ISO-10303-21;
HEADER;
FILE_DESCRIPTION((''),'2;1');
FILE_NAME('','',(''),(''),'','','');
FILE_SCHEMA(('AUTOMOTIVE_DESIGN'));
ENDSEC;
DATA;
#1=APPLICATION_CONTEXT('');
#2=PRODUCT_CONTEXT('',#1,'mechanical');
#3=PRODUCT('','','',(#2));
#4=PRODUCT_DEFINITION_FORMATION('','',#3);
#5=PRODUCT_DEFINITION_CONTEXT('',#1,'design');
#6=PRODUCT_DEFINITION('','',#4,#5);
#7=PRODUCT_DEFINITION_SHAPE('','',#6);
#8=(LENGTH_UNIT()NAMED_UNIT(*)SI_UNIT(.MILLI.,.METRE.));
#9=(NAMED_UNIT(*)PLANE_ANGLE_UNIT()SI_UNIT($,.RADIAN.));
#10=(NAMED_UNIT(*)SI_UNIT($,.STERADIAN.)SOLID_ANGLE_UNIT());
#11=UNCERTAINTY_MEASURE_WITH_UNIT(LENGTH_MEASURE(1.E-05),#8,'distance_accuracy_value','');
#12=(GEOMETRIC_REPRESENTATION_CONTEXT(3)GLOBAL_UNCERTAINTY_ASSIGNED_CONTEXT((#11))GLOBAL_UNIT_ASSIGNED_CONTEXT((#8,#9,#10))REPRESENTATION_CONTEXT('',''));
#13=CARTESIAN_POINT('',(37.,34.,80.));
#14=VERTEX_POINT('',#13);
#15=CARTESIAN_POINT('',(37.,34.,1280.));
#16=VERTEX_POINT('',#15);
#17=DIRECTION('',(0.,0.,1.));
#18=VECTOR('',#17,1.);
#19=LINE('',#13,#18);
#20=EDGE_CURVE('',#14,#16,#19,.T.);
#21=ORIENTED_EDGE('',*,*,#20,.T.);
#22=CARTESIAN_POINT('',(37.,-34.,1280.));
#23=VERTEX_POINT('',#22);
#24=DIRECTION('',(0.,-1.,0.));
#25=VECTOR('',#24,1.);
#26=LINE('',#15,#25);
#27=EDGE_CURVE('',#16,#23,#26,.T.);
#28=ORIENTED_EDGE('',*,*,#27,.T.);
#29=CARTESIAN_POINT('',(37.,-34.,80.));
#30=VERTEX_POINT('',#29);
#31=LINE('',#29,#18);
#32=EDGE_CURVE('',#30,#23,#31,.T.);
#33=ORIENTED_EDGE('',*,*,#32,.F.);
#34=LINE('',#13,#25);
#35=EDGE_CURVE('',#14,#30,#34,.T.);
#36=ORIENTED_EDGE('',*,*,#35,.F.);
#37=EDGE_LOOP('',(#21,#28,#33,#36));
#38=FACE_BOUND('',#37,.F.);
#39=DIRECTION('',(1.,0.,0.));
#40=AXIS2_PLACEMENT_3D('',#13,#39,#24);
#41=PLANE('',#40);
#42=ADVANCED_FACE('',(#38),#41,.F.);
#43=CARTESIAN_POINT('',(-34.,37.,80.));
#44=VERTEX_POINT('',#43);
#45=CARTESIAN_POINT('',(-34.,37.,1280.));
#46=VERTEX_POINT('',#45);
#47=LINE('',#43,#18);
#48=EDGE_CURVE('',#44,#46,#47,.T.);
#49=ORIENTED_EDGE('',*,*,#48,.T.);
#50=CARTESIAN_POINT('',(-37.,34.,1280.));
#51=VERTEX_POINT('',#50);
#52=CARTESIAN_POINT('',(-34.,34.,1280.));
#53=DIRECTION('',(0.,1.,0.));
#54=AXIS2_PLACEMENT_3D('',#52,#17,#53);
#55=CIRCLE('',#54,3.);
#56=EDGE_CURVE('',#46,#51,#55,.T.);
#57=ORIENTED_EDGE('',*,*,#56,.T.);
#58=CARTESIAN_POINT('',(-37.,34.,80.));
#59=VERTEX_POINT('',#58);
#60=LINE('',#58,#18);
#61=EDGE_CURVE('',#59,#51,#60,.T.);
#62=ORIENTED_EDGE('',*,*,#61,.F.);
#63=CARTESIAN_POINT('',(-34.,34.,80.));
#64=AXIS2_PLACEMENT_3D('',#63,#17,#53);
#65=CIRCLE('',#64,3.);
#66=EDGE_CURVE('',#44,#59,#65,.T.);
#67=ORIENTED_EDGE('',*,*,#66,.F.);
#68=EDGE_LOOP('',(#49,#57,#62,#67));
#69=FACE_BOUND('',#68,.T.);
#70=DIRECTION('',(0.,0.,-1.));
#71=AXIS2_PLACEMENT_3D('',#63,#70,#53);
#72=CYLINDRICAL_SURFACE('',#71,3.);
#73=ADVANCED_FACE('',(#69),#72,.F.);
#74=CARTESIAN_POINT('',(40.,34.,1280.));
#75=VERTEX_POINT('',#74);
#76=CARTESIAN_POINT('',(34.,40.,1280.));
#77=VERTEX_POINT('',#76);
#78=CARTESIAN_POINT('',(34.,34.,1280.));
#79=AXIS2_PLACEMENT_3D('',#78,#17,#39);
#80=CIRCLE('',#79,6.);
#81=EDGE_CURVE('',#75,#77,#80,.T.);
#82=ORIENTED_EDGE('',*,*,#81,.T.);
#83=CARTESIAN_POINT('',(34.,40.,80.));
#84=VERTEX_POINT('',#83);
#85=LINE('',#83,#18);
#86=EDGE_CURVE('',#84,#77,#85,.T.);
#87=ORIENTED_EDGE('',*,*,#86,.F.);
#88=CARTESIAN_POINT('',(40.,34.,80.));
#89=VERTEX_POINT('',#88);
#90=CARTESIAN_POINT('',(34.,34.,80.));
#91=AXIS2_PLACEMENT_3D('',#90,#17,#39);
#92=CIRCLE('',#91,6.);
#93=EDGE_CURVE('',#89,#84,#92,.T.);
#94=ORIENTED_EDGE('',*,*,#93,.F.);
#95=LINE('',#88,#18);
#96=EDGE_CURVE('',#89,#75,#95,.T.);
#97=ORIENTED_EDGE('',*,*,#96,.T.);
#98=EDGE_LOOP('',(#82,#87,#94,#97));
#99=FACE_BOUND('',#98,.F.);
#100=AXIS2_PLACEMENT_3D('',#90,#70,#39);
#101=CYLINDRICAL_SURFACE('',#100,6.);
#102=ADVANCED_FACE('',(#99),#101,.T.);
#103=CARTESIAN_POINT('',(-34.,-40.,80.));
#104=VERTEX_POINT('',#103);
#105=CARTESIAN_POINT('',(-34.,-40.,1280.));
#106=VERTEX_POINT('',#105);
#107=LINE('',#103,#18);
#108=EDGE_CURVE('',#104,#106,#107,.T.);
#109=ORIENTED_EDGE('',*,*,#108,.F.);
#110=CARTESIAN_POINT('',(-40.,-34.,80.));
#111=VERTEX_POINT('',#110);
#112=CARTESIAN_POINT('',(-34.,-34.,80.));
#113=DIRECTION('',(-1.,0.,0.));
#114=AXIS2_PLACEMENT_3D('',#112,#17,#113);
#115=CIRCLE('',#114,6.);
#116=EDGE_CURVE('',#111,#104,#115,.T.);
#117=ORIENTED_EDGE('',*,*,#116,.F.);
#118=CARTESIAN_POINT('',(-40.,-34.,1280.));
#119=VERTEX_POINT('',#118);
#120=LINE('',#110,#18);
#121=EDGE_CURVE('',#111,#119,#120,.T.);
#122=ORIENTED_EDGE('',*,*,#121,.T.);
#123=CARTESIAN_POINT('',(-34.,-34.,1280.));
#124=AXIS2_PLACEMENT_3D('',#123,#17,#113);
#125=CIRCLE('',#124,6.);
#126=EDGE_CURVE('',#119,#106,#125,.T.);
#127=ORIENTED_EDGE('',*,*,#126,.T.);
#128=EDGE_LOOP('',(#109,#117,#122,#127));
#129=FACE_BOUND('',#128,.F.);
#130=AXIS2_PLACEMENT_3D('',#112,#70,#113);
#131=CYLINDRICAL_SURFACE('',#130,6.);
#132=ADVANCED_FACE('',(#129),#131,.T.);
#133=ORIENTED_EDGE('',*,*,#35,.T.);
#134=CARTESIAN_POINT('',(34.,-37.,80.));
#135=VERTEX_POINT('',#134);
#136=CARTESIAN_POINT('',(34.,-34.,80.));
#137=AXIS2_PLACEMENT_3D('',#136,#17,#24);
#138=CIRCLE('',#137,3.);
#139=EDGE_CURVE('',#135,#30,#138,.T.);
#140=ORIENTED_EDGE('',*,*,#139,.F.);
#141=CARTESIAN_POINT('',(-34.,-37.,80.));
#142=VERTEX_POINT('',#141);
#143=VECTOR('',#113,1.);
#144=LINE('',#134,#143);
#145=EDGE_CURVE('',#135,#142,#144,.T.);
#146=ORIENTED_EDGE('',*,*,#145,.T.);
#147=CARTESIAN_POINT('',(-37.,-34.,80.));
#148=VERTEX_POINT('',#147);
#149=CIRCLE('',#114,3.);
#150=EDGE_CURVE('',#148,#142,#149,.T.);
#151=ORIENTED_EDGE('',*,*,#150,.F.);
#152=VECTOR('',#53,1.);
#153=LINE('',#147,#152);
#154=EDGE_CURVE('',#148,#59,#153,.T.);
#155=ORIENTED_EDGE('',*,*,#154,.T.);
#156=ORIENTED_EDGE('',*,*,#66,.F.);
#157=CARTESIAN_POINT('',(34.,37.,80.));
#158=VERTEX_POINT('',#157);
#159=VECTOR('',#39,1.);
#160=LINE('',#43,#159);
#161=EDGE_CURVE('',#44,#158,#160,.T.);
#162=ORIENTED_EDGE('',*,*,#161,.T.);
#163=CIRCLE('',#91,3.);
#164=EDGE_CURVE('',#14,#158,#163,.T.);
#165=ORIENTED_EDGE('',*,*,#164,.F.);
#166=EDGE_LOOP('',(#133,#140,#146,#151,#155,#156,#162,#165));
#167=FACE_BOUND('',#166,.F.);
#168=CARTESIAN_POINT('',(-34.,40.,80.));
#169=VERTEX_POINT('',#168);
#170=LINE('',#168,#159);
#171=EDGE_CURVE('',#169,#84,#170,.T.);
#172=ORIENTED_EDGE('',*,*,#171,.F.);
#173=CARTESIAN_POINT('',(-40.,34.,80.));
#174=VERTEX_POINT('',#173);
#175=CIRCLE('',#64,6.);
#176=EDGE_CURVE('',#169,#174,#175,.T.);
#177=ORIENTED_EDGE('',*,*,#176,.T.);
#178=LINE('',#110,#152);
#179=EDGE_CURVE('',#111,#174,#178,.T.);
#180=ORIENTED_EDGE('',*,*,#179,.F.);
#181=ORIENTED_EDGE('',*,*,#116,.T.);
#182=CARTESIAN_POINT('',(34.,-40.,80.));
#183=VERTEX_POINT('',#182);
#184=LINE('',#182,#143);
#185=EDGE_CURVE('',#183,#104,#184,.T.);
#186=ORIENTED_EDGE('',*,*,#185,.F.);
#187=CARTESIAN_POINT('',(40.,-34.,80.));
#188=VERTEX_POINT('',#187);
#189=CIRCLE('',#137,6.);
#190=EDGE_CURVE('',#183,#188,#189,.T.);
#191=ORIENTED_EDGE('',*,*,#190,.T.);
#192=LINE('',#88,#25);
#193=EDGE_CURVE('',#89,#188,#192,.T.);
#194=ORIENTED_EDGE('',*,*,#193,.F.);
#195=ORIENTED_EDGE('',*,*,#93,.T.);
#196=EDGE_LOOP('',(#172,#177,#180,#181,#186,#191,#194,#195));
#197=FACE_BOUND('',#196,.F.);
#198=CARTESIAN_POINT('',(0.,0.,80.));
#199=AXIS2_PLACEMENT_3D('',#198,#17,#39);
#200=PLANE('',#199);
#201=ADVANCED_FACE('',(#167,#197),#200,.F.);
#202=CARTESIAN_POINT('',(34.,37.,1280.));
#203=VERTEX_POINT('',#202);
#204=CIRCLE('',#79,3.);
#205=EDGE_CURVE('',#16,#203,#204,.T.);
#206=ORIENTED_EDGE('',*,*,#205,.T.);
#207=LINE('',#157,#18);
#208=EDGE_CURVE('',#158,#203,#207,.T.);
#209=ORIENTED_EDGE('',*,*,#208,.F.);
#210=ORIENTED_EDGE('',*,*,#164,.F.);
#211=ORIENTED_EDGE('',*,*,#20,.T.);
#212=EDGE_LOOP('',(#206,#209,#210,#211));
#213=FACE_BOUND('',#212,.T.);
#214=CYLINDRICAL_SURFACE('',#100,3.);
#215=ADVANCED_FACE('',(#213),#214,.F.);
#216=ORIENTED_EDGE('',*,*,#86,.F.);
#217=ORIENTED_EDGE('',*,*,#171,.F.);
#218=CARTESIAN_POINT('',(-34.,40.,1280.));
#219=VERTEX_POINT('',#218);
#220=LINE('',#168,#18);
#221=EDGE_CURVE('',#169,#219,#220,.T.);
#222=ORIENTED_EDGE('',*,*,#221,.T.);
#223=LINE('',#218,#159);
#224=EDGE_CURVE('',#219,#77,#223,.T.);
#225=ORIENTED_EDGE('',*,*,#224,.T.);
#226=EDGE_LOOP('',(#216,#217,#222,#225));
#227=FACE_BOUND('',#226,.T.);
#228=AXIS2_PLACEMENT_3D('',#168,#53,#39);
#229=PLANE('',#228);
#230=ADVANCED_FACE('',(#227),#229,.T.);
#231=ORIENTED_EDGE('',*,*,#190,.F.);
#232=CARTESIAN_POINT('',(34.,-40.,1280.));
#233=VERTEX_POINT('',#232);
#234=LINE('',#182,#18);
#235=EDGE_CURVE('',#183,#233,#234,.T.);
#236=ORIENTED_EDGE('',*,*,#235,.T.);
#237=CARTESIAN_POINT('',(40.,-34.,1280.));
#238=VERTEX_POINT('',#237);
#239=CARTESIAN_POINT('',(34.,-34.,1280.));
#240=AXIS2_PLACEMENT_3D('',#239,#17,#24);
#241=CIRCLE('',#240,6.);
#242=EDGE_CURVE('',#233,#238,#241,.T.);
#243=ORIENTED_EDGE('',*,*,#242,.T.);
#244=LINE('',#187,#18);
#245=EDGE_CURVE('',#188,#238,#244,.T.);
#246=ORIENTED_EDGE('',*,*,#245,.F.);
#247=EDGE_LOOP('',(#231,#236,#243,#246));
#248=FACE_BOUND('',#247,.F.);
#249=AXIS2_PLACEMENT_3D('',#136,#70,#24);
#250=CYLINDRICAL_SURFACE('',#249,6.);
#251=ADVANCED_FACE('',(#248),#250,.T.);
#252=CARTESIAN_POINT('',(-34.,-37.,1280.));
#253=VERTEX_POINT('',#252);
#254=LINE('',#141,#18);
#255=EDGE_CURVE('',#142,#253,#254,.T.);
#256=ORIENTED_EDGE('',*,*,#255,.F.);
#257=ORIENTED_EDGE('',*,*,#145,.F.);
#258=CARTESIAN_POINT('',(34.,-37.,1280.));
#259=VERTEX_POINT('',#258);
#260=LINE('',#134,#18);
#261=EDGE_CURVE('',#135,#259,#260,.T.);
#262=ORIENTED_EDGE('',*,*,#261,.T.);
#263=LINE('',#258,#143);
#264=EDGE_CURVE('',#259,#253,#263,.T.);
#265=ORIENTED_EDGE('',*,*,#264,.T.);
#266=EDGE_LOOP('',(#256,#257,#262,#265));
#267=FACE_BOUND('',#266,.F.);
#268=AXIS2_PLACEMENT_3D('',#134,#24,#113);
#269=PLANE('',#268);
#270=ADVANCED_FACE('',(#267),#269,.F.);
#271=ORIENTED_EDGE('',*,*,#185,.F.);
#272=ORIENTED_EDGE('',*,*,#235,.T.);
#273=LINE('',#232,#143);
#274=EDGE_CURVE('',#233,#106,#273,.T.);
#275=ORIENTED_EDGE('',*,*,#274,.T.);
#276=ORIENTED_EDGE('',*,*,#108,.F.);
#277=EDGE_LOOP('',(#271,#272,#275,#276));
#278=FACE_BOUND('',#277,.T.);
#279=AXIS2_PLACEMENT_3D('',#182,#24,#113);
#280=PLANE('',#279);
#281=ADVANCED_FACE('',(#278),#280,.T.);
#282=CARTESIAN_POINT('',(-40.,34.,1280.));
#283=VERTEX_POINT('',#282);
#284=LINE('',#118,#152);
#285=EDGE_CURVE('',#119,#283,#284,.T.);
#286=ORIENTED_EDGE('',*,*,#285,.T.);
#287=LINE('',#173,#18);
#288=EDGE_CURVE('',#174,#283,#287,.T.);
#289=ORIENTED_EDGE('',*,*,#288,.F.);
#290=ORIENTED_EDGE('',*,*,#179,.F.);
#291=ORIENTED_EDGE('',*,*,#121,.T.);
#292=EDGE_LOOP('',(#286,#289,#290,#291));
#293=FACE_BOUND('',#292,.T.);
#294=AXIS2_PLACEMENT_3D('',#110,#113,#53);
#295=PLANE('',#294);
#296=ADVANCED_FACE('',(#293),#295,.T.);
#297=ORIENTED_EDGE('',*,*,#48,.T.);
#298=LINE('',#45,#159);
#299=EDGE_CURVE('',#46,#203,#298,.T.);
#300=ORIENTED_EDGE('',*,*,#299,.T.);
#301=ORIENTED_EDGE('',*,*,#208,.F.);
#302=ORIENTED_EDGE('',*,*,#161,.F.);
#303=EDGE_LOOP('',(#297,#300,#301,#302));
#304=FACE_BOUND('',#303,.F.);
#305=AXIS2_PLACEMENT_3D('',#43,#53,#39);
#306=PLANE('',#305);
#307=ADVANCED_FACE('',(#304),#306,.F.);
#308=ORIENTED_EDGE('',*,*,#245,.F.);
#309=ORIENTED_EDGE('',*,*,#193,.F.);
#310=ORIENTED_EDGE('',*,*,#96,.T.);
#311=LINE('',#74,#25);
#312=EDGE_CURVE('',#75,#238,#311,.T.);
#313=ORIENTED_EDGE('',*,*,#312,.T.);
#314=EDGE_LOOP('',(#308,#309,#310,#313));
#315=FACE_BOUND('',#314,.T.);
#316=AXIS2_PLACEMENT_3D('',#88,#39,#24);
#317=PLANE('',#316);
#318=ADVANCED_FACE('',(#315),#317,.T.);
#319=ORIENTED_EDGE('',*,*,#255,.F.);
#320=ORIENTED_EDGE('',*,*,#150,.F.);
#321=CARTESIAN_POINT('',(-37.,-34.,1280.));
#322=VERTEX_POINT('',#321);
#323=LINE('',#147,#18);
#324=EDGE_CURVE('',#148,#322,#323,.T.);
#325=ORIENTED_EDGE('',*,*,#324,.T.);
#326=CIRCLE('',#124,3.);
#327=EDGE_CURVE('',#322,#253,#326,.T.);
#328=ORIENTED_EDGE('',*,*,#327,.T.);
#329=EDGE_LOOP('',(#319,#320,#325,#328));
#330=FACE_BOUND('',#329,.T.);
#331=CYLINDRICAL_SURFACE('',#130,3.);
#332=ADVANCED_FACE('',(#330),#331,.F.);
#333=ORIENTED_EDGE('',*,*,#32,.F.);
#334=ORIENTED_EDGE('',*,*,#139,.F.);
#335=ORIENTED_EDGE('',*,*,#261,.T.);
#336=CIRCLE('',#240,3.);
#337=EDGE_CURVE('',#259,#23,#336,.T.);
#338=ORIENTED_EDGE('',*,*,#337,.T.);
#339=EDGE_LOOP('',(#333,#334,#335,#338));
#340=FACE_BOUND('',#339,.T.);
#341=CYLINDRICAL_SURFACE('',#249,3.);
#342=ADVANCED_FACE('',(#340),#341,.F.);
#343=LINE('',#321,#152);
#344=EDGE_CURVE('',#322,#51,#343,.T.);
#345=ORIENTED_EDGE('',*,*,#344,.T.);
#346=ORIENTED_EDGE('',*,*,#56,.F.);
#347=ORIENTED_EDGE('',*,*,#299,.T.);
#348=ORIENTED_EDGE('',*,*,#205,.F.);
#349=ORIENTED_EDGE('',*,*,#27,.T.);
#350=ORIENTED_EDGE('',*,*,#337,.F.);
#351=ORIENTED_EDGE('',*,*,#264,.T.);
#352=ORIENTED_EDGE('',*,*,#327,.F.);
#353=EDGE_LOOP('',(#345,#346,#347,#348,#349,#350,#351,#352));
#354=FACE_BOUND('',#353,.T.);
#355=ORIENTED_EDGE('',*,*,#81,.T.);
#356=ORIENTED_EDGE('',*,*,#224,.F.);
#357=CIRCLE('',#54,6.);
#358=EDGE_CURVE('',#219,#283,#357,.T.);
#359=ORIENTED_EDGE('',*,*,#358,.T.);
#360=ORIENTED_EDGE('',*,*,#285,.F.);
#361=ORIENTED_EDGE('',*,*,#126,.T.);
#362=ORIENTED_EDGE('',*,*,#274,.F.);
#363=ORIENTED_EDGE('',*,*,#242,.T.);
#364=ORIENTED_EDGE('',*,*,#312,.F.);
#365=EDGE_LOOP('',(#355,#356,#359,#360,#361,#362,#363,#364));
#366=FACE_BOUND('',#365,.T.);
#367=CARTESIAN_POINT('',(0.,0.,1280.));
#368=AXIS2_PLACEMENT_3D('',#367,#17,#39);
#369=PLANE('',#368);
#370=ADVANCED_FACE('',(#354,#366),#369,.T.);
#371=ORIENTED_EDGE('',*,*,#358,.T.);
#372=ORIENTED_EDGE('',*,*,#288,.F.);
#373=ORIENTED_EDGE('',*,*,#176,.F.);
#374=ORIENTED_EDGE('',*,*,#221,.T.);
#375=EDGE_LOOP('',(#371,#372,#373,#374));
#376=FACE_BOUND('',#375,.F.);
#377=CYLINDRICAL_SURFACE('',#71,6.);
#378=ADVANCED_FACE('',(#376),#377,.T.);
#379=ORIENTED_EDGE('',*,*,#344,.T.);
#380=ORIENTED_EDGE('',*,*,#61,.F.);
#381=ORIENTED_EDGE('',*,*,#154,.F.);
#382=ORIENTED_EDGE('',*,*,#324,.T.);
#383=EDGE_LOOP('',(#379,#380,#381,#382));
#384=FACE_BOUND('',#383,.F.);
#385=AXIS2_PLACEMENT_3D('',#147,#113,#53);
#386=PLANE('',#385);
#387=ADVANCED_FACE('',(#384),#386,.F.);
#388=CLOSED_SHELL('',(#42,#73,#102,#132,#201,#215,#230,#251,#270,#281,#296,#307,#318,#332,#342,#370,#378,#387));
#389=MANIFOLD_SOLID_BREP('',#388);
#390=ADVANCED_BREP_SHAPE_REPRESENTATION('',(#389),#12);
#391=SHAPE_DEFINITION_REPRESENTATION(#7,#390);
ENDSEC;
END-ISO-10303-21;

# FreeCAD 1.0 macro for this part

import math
import FreeCAD as App
import Part
import Sketcher
Q = App.Units.Quantity

doc = App.newDocument("Part")
body = doc.addObject("PartDesign::Body", "Body")

# Sketch on XY plane
sketch1 = doc.addObject("Sketcher::SketchObject", "Sketch")
body.addObject(sketch1)
sketch1.AttachmentSupport = (doc.XY_Plane, [""])
sketch1.MapMode = "FlatFace"
sketch1.AttachmentOffset = App.Placement(App.Vector(0, 0, 80), App.Rotation())
sketch1.addGeometry([
    Part.LineSegment(App.Vector(-40, 34, 0), App.Vector(-40, -34, 0)),  # 0
    Part.ArcOfCircle(Part.Circle(App.Vector(-34, -34, 0), App.Vector(0, 0, 1), 6), math.radians(180), math.radians(270)),  # 1
    Part.LineSegment(App.Vector(-34, -40, 0), App.Vector(34, -40, 0)),  # 2
    Part.ArcOfCircle(Part.Circle(App.Vector(34, -34, 0), App.Vector(0, 0, 1), 6), math.radians(-90), math.radians(0)),  # 3
    Part.LineSegment(App.Vector(40, -34, 0), App.Vector(40, 34, 0)),  # 4
    Part.ArcOfCircle(Part.Circle(App.Vector(34, 34, 0), App.Vector(0, 0, 1), 6), math.radians(0), math.radians(90)),  # 5
    Part.LineSegment(App.Vector(34, 40, 0), App.Vector(-34, 40, 0)),  # 6
    Part.ArcOfCircle(Part.Circle(App.Vector(-34, 34, 0), App.Vector(0, 0, 1), 6), math.radians(90), math.radians(180)),  # 7
    Part.ArcOfCircle(Part.Circle(App.Vector(-34, 34, 0), App.Vector(0, 0, 1), 3), math.radians(90), math.radians(180)),  # 8
    Part.LineSegment(App.Vector(-34, 37, 0), App.Vector(34, 37, 0)),  # 9
    Part.ArcOfCircle(Part.Circle(App.Vector(34, 34, 0), App.Vector(0, 0, 1), 3), math.radians(0), math.radians(90)),  # 10
    Part.LineSegment(App.Vector(37, 34, 0), App.Vector(37, -34, 0)),  # 11
    Part.ArcOfCircle(Part.Circle(App.Vector(34, -34, 0), App.Vector(0, 0, 1), 3), math.radians(-90), math.radians(0)),  # 12
    Part.LineSegment(App.Vector(34, -37, 0), App.Vector(-34, -37, 0)),  # 13
    Part.ArcOfCircle(Part.Circle(App.Vector(-34, -34, 0), App.Vector(0, 0, 1), 3), math.radians(180), math.radians(270)),  # 14
    Part.LineSegment(App.Vector(-37, -34, 0), App.Vector(-37, 34, 0)),  # 15
], False)
sketch1.addConstraint([
    Sketcher.Constraint("Tangent", 0, 2, 1, 1),
    Sketcher.Constraint("Tangent", 1, 2, 2, 1),
    Sketcher.Constraint("Tangent", 2, 2, 3, 1),
    Sketcher.Constraint("Tangent", 3, 2, 4, 1),
    Sketcher.Constraint("Tangent", 4, 2, 5, 1),
    Sketcher.Constraint("Tangent", 5, 2, 6, 1),
    Sketcher.Constraint("Tangent", 6, 2, 7, 1),
    Sketcher.Constraint("Tangent", 7, 2, 0, 1),
    Sketcher.Constraint("Tangent", 8, 1, 9, 1),
    Sketcher.Constraint("Tangent", 9, 2, 10, 2),
    Sketcher.Constraint("Tangent", 10, 1, 11, 1),
    Sketcher.Constraint("Tangent", 11, 2, 12, 2),
    Sketcher.Constraint("Tangent", 12, 1, 13, 1),
    Sketcher.Constraint("Tangent", 13, 2, 14, 2),
    Sketcher.Constraint("Tangent", 14, 1, 15, 1),
    Sketcher.Constraint("Tangent", 15, 2, 8, 2),
    Sketcher.Constraint("Vertical", 0),
    Sketcher.Constraint("Horizontal", 2),
    Sketcher.Constraint("Vertical", 4),
    Sketcher.Constraint("Horizontal", 6),
    Sketcher.Constraint("Horizontal", 9),
    Sketcher.Constraint("Vertical", 11),
    Sketcher.Constraint("Horizontal", 13),
    Sketcher.Constraint("Vertical", 15),
    Sketcher.Constraint("Coincident", 8, 3, 7, 3),
    Sketcher.Constraint("Coincident", 10, 3, 5, 3),
    Sketcher.Constraint("Coincident", 12, 3, 3, 3),
    Sketcher.Constraint("Equal", 1, 3),
    Sketcher.Constraint("Equal", 3, 5),
    Sketcher.Constraint("Equal", 5, 7),
    Sketcher.Constraint("Equal", 12, 14),
    Sketcher.Constraint("Symmetric", 1, 3, 5, 3, -1, 1),
    Sketcher.Constraint("Equal", 13, 0),
    Sketcher.Constraint("Radius", 1, Q("6 mm")),
    Sketcher.Constraint("Radius", 8, Q("3 mm")),
    Sketcher.Constraint("DistanceX", 0, 2, -1, 1, Q("40 mm")),
])
pad1 = doc.addObject("PartDesign::Pad", "Pad")
body.addObject(pad1)
pad1.Profile = sketch1
pad1.Length = 1200

doc.recompute()
